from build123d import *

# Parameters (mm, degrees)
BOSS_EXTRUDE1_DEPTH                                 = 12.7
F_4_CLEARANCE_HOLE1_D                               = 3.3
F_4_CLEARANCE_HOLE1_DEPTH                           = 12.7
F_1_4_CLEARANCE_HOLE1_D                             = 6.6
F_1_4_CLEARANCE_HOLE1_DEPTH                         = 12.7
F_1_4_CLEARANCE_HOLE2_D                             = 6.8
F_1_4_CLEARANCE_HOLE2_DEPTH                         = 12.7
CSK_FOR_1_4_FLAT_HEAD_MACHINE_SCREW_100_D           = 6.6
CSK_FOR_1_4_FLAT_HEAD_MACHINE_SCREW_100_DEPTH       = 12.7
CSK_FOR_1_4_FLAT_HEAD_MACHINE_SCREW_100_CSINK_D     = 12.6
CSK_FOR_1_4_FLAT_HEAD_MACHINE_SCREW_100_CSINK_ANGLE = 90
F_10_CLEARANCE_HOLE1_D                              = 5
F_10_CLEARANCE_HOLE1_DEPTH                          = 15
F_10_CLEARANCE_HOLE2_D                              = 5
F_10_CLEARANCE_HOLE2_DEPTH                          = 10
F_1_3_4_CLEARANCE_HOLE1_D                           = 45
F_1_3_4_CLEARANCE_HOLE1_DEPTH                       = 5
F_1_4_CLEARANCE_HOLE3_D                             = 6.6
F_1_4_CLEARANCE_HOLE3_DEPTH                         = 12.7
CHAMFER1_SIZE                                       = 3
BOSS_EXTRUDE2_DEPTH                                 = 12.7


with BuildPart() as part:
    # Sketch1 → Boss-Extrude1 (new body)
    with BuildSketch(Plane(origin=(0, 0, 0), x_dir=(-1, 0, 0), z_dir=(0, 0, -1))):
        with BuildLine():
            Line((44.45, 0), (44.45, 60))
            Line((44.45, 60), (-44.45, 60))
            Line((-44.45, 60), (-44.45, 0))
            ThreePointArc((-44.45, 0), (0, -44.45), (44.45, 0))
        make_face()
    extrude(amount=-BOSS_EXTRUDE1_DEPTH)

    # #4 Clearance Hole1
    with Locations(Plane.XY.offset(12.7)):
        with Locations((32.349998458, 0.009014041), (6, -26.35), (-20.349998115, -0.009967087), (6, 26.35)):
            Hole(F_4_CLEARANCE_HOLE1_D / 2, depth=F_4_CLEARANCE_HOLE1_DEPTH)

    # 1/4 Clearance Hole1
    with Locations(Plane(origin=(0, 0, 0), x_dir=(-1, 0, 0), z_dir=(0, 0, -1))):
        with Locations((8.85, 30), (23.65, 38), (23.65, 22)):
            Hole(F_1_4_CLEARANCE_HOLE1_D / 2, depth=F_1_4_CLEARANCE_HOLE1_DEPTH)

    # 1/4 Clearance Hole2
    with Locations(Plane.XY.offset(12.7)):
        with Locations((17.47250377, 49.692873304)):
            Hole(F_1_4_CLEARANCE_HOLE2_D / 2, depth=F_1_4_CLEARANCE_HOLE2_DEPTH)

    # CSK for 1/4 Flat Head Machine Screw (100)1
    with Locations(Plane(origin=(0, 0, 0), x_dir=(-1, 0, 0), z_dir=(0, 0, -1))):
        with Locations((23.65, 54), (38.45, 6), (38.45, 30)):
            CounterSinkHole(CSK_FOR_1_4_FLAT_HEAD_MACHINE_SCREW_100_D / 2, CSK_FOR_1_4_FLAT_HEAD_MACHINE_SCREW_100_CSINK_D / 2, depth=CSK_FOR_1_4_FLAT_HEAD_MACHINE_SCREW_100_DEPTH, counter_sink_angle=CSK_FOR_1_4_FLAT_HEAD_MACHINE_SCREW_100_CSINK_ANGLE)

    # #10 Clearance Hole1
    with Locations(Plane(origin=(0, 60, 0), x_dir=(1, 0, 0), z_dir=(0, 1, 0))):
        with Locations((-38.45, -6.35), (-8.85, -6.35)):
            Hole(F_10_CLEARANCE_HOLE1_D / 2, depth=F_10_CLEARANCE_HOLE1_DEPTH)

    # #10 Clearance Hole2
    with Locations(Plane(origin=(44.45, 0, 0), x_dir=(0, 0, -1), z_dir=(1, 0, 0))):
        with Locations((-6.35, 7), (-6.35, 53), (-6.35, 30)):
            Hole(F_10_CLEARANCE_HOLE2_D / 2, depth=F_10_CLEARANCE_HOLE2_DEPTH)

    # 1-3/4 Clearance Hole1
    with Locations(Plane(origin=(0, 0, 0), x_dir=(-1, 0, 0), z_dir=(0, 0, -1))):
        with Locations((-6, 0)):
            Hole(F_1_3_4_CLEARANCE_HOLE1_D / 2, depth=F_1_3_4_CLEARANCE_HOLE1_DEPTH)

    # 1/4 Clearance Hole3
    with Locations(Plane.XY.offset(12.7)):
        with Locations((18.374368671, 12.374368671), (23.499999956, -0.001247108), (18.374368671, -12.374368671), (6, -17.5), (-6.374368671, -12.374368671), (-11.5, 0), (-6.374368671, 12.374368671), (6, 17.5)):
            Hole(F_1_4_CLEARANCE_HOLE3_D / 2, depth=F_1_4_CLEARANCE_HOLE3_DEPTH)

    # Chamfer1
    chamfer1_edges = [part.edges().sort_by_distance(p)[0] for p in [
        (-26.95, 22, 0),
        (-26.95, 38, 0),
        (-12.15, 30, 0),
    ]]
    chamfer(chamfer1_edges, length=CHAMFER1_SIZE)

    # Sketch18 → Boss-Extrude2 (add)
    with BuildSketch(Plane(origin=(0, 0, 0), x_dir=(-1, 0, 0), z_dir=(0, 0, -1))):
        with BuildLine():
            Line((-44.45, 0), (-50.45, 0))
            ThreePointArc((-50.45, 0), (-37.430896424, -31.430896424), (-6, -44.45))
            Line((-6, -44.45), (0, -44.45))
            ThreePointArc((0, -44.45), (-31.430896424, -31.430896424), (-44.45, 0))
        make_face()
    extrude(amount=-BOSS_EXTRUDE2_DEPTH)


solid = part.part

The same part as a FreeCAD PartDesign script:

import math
import FreeCAD as App
import Part
import Sketcher

V = App.Vector


def edges_at(feature, points):
    """Names of the edges that pass closest to the given points."""
    edges = feature.Shape.Edges
    near = lambda p: min(range(len(edges)), key=lambda i: edges[i].distToShape(Part.Vertex(*p))[0])
    return sorted({f"Edge{near(p) + 1}" for p in points})

doc = App.newDocument("Part")
body = doc.addObject("PartDesign::Body", "Body")

# Sketch on XY plane
sketch1 = body.newObject("Sketcher::SketchObject", "Sketch")
sketch1.AttachmentSupport = (doc.getObject("XY_Plane"), [""])
sketch1.MapMode = "FlatFace"
sketch1.addGeometry(Part.LineSegment(V(-44.45, 0, 0), V(-44.45, 60, 0)), False)
sketch1.addGeometry(Part.LineSegment(V(-44.45, 60, 0), V(44.45, 60, 0)), False)
sketch1.addGeometry(Part.LineSegment(V(44.45, 60, 0), V(44.45, 0, 0)), False)
sketch1.addGeometry(Part.ArcOfCircle(Part.Circle(V(0, 0, 0), V(0, 0, 1), 44.45), math.radians(180), math.radians(360)), False)
sketch1.addConstraint(Sketcher.Constraint("Coincident", 0, 2, 1, 1))
sketch1.addConstraint(Sketcher.Constraint("Coincident", 1, 2, 2, 1))
sketch1.addConstraint(Sketcher.Constraint("Tangent", 2, 2, 3, 2))
sketch1.addConstraint(Sketcher.Constraint("Tangent", 3, 1, 0, 1))
sketch1.addConstraint(Sketcher.Constraint("Vertical", 0))
sketch1.addConstraint(Sketcher.Constraint("Horizontal", 1))
sketch1.addConstraint(Sketcher.Constraint("Vertical", 2))
sketch1.addConstraint(Sketcher.Constraint("Coincident", 3, 3, -1, 1))
sketch1.addConstraint(Sketcher.Constraint("DistanceY", 0, 1, 0, 2, 60.0))
sketch1.addConstraint(Sketcher.Constraint("Radius", 3, 44.45))
pad1 = body.newObject("PartDesign::Pad", "Pad")
pad1.Profile = sketch1
pad1.Length = 12.7

# Sketch on XY plane
sketch2 = body.newObject("Sketcher::SketchObject", "Sketch001")
sketch2.AttachmentSupport = (doc.getObject("XY_Plane"), [""])
sketch2.MapMode = "FlatFace"
sketch2.AttachmentOffset = App.Placement(V(0, 0, 12.7), App.Rotation())
sketch2.addGeometry(Part.Circle(V(32.349998, 0.009014, 0), V(0, 0, 1), 1.65), False)
sketch2.addGeometry(Part.Circle(V(6, -26.35, 0), V(0, 0, 1), 1.65), False)
sketch2.addGeometry(Part.Circle(V(-20.349998, -0.009967, 0), V(0, 0, 1), 1.65), False)
sketch2.addGeometry(Part.Circle(V(6, 26.35, 0), V(0, 0, 1), 1.65), False)
sketch2.addConstraint(Sketcher.Constraint("Equal", 0, 1))
sketch2.addConstraint(Sketcher.Constraint("Equal", 1, 2))
sketch2.addConstraint(Sketcher.Constraint("Equal", 2, 3))
sketch2.addConstraint(Sketcher.Constraint("Symmetric", 1, 3, 3, 3, -1))
sketch2.addConstraint(Sketcher.Constraint("Diameter", 0, 3.3))
sketch2.addConstraint(Sketcher.Constraint("DistanceX", -1, 1, 1, 3, 6.0))
sketch2.addConstraint(Sketcher.Constraint("DistanceY", 1, 3, 3, 3, 52.7))
sketch2.addConstraint(Sketcher.Constraint("DistanceX", -1, 1, 0, 3, 32.349998))
sketch2.addConstraint(Sketcher.Constraint("DistanceX", 2, 3, -1, 1, 20.349998))
sketch2.addConstraint(Sketcher.Constraint("DistanceY", 2, 3, 0, 3, 0.018981))
sketch2.addConstraint(Sketcher.Constraint("DistanceY", -1, 1, 0, 3, 0.009014))
doc.recompute()
hole = body.newObject("PartDesign::Hole", "Hole")
hole.Profile = sketch2
hole.ThreadType = "None"
hole.Diameter = 3.3
hole.DepthType = "Dimension"
hole.Depth = 12.7
hole.DrillPoint = "Flat"

# Sketch on XY plane
sketch3 = body.newObject("Sketcher::SketchObject", "Sketch002")
sketch3.AttachmentSupport = (doc.getObject("XY_Plane"), [""])
sketch3.MapMode = "FlatFace"
sketch3.addGeometry(Part.Circle(V(-8.85, 30, 0), V(0, 0, 1), 3.3), False)
sketch3.addGeometry(Part.Circle(V(-23.65, 38, 0), V(0, 0, 1), 3.3), False)
sketch3.addGeometry(Part.Circle(V(-23.65, 22, 0), V(0, 0, 1), 3.3), False)
sketch3.addConstraint(Sketcher.Constraint("Equal", 0, 1))
sketch3.addConstraint(Sketcher.Constraint("Equal", 1, 2))
sketch3.addConstraint(Sketcher.Constraint("Vertical", 1, 3, 2, 3))
sketch3.addConstraint(Sketcher.Constraint("Diameter", 0, 6.6))
sketch3.addConstraint(Sketcher.Constraint("DistanceY", -1, 1, 0, 3, 30.0))
sketch3.addConstraint(Sketcher.Constraint("DistanceY", -1, 1, 1, 3, 38.0))
sketch3.addConstraint(Sketcher.Constraint("DistanceY", -1, 1, 2, 3, 22.0))
sketch3.addConstraint(Sketcher.Constraint("DistanceX", 1, 3, 0, 3, 14.8))
sketch3.addConstraint(Sketcher.Constraint("DistanceX", 0, 3, -1, 1, 8.85))
doc.recompute()
hole2 = body.newObject("PartDesign::Hole", "Hole001")
hole2.Profile = sketch3
hole2.ThreadType = "None"
hole2.Diameter = 6.6
hole2.DepthType = "Dimension"
hole2.Depth = 12.7
hole2.DrillPoint = "Flat"
hole2.Reversed = True

# Sketch on XY plane
sketch4 = body.newObject("Sketcher::SketchObject", "Sketch003")
sketch4.AttachmentSupport = (doc.getObject("XY_Plane"), [""])
sketch4.MapMode = "FlatFace"
sketch4.AttachmentOffset = App.Placement(V(0, 0, 12.7), App.Rotation())
sketch4.addGeometry(Part.Circle(V(17.472504, 49.692873, 0), V(0, 0, 1), 3.4), False)
sketch4.addConstraint(Sketcher.Constraint("Diameter", 0, 6.8))
sketch4.addConstraint(Sketcher.Constraint("DistanceX", -1, 1, 0, 3, 17.472504))
sketch4.addConstraint(Sketcher.Constraint("DistanceY", -1, 1, 0, 3, 49.692873))
doc.recompute()
hole3 = body.newObject("PartDesign::Hole", "Hole002")
hole3.Profile = sketch4
hole3.ThreadType = "None"
hole3.Diameter = 6.8
hole3.DepthType = "Dimension"
hole3.Depth = 12.7
hole3.DrillPoint = "Flat"

# Sketch on XY plane
sketch5 = body.newObject("Sketcher::SketchObject", "Sketch004")
sketch5.AttachmentSupport = (doc.getObject("XY_Plane"), [""])
sketch5.MapMode = "FlatFace"
sketch5.addGeometry(Part.Circle(V(-23.65, 54, 0), V(0, 0, 1), 3.3), False)
sketch5.addGeometry(Part.Circle(V(-38.45, 6, 0), V(0, 0, 1), 3.3), False)
sketch5.addGeometry(Part.Circle(V(-38.45, 30, 0), V(0, 0, 1), 3.3), False)
sketch5.addConstraint(Sketcher.Constraint("Equal", 0, 1))
sketch5.addConstraint(Sketcher.Constraint("Equal", 1, 2))
sketch5.addConstraint(Sketcher.Constraint("Vertical", 1, 3, 2, 3))
sketch5.addConstraint(Sketcher.Constraint("Diameter", 0, 6.6))
sketch5.addConstraint(Sketcher.Constraint("DistanceY", -1, 1, 0, 3, 54.0))
sketch5.addConstraint(Sketcher.Constraint("DistanceY", -1, 1, 1, 3, 6.0))
sketch5.addConstraint(Sketcher.Constraint("DistanceY", -1, 1, 2, 3, 30.0))
sketch5.addConstraint(Sketcher.Constraint("DistanceX", 1, 3, 0, 3, 14.8))
sketch5.addConstraint(Sketcher.Constraint("DistanceX", 0, 3, -1, 1, 23.65))
doc.recompute()
hole4 = body.newObject("PartDesign::Hole", "Hole003")
hole4.Profile = sketch5
hole4.ThreadType = "None"
hole4.Diameter = 6.6
hole4.DepthType = "Dimension"
hole4.Depth = 12.7
hole4.DrillPoint = "Flat"
hole4.HoleCutType = "Countersink"
hole4.HoleCutDiameter = 12.6
hole4.HoleCutCountersinkAngle = 90
hole4.Reversed = True

# Sketch on XZ plane
sketch6 = body.newObject("Sketcher::SketchObject", "Sketch005")
sketch6.AttachmentSupport = (doc.getObject("XZ_Plane"), [""])
sketch6.MapMode = "FlatFace"
sketch6.AttachmentOffset = App.Placement(V(0, 0, -60), App.Rotation())
sketch6.addGeometry(Part.Circle(V(-38.45, 6.35, 0), V(0, 0, 1), 2.5), False)
sketch6.addGeometry(Part.Circle(V(-8.85, 6.35, 0), V(0, 0, 1), 2.5), False)
sketch6.addConstraint(Sketcher.Constraint("Equal", 0, 1))
sketch6.addConstraint(Sketcher.Constraint("Horizontal", 0, 3, 1, 3))
sketch6.addConstraint(Sketcher.Constraint("Diameter", 0, 5.0))
sketch6.addConstraint(Sketcher.Constraint("DistanceX", 0, 3, 1, 3, 29.6))
sketch6.addConstraint(Sketcher.Constraint("DistanceX", 0, 3, -1, 1, 38.45))
sketch6.addConstraint(Sketcher.Constraint("DistanceY", -1, 1, 0, 3, 6.35))
doc.recompute()
hole5 = body.newObject("PartDesign::Hole", "Hole004")
hole5.Profile = sketch6
hole5.ThreadType = "None"
hole5.Diameter = 5
hole5.DepthType = "Dimension"
hole5.Depth = 15
hole5.DrillPoint = "Flat"
hole5.Reversed = True

# Sketch on YZ plane
sketch7 = body.newObject("Sketcher::SketchObject", "Sketch006")
sketch7.AttachmentSupport = (doc.getObject("YZ_Plane"), [""])
sketch7.MapMode = "FlatFace"
sketch7.AttachmentOffset = App.Placement(V(0, 0, 44.45), App.Rotation())
sketch7.addGeometry(Part.Circle(V(7, 6.35, 0), V(0, 0, 1), 2.5), False)
sketch7.addGeometry(Part.Circle(V(53, 6.35, 0), V(0, 0, 1), 2.5), False)
sketch7.addGeometry(Part.Circle(V(30, 6.35, 0), V(0, 0, 1), 2.5), False)
sketch7.addConstraint(Sketcher.Constraint("Equal", 0, 1))
sketch7.addConstraint(Sketcher.Constraint("Equal", 1, 2))
sketch7.addConstraint(Sketcher.Constraint("Horizontal", 0, 3, 1, 3))
sketch7.addConstraint(Sketcher.Constraint("Horizontal", 1, 3, 2, 3))
sketch7.addConstraint(Sketcher.Constraint("Diameter", 0, 5.0))
sketch7.addConstraint(Sketcher.Constraint("DistanceX", -1, 1, 0, 3, 7.0))
sketch7.addConstraint(Sketcher.Constraint("DistanceX", -1, 1, 1, 3, 53.0))
sketch7.addConstraint(Sketcher.Constraint("DistanceX", -1, 1, 2, 3, 30.0))
sketch7.addConstraint(Sketcher.Constraint("DistanceY", -1, 1, 0, 3, 6.35))
doc.recompute()
hole6 = body.newObject("PartDesign::Hole", "Hole005")
hole6.Profile = sketch7
hole6.ThreadType = "None"
hole6.Diameter = 5
hole6.DepthType = "Dimension"
hole6.Depth = 10
hole6.DrillPoint = "Flat"

# Sketch on XY plane
sketch8 = body.newObject("Sketcher::SketchObject", "Sketch007")
sketch8.AttachmentSupport = (doc.getObject("XY_Plane"), [""])
sketch8.MapMode = "FlatFace"
sketch8.addGeometry(Part.Circle(V(6, 0, 0), V(0, 0, 1), 22.5), False)
sketch8.addConstraint(Sketcher.Constraint("PointOnObject", 0, 3, -1))
sketch8.addConstraint(Sketcher.Constraint("Diameter", 0, 45.0))
sketch8.addConstraint(Sketcher.Constraint("DistanceX", -1, 1, 0, 3, 6.0))
doc.recompute()
hole7 = body.newObject("PartDesign::Hole", "Hole006")
hole7.Profile = sketch8
hole7.ThreadType = "None"
hole7.Diameter = 45
hole7.DepthType = "Dimension"
hole7.Depth = 5
hole7.DrillPoint = "Flat"
hole7.Reversed = True

# Sketch on XY plane
sketch9 = body.newObject("Sketcher::SketchObject", "Sketch008")
sketch9.AttachmentSupport = (doc.getObject("XY_Plane"), [""])
sketch9.MapMode = "FlatFace"
sketch9.AttachmentOffset = App.Placement(V(0, 0, 12.7), App.Rotation())
sketch9.addGeometry(Part.Circle(V(18.374369, 12.374369, 0), V(0, 0, 1), 3.3), False)
sketch9.addGeometry(Part.Circle(V(23.5, -0.001247, 0), V(0, 0, 1), 3.3), False)
sketch9.addGeometry(Part.Circle(V(18.374369, -12.374369, 0), V(0, 0, 1), 3.3), False)
sketch9.addGeometry(Part.Circle(V(6, -17.5, 0), V(0, 0, 1), 3.3), False)
sketch9.addGeometry(Part.Circle(V(-6.374369, -12.374369, 0), V(0, 0, 1), 3.3), False)
sketch9.addGeometry(Part.Circle(V(-11.5, 0, 0), V(0, 0, 1), 3.3), False)
sketch9.addGeometry(Part.Circle(V(-6.374369, 12.374369, 0), V(0, 0, 1), 3.3), False)
sketch9.addGeometry(Part.Circle(V(6, 17.5, 0), V(0, 0, 1), 3.3), False)
sketch9.addConstraint(Sketcher.Constraint("Equal", 0, 1))
sketch9.addConstraint(Sketcher.Constraint("Equal", 1, 2))
sketch9.addConstraint(Sketcher.Constraint("Equal", 2, 3))
sketch9.addConstraint(Sketcher.Constraint("Equal", 3, 4))
sketch9.addConstraint(Sketcher.Constraint("Equal", 4, 5))
sketch9.addConstraint(Sketcher.Constraint("Equal", 5, 6))
sketch9.addConstraint(Sketcher.Constraint("Equal", 6, 7))
sketch9.addConstraint(Sketcher.Constraint("Symmetric", 0, 3, 2, 3, -1))
sketch9.addConstraint(Sketcher.Constraint("Symmetric", 4, 3, 6, 3, -1))
sketch9.addConstraint(Sketcher.Constraint("Symmetric", 3, 3, 7, 3, -1))
sketch9.addConstraint(Sketcher.Constraint("PointOnObject", 5, 3, -1))
sketch9.addConstraint(Sketcher.Constraint("Horizontal", 2, 3, 4, 3))
sketch9.addConstraint(Sketcher.Constraint("Diameter", 0, 6.6))
sketch9.addConstraint(Sketcher.Constraint("DistanceX", -1, 1, 3, 3, 6.0))
sketch9.addConstraint(Sketcher.Constraint("DistanceX", 5, 3, 1, 3, 35.0))
sketch9.addConstraint(Sketcher.Constraint("DistanceX", -1, 1, 1, 3, 23.5))
sketch9.addConstraint(Sketcher.Constraint("DistanceY", 3, 3, -1, 1, 17.5))
sketch9.addConstraint(Sketcher.Constraint("DistanceX", -1, 1, 0, 3, 18.374369))
sketch9.addConstraint(Sketcher.Constraint("DistanceY", -1, 1, 0, 3, 12.374369))
sketch9.addConstraint(Sketcher.Constraint("DistanceX", 4, 3, -1, 1, 6.374369))
sketch9.addConstraint(Sketcher.Constraint("DistanceY", 2, 3, 1, 3, 12.373122))
doc.recompute()
hole8 = body.newObject("PartDesign::Hole", "Hole007")
hole8.Profile = sketch9
hole8.ThreadType = "None"
hole8.Diameter = 6.6
hole8.DepthType = "Dimension"
hole8.Depth = 12.7
hole8.DrillPoint = "Flat"
doc.recompute()

chamfer = body.newObject("PartDesign::Chamfer", "Chamfer")
chamfer.Base = (hole8, edges_at(hole8, [(-26.95, 22, 0), (-26.95, 38, 0), (-12.15, 30, 0)]))
chamfer.Size = 3

# Sketch on XY plane
sketch10 = body.newObject("Sketcher::SketchObject", "Sketch009")
sketch10.AttachmentSupport = (doc.getObject("XY_Plane"), [""])
sketch10.MapMode = "FlatFace"
sketch10.addGeometry(Part.LineSegment(V(44.45, 0, 0), V(50.45, 0, 0)), False)
sketch10.addGeometry(Part.ArcOfCircle(Part.Circle(V(6, 0, 0), V(0, 0, 1), 44.45), math.radians(-90), math.radians(0)), False)
sketch10.addGeometry(Part.LineSegment(V(6, -44.45, 0), V(0, -44.45, 0)), False)
sketch10.addGeometry(Part.ArcOfCircle(Part.Circle(V(0, 0, 0), V(0, 0, 1), 44.45), math.radians(-90), math.radians(0)), False)
sketch10.addConstraint(Sketcher.Constraint("Coincident", 0, 2, 1, 2))
sketch10.addConstraint(Sketcher.Constraint("Tangent", 1, 1, 2, 1))
sketch10.addConstraint(Sketcher.Constraint("Tangent", 2, 2, 3, 1))
sketch10.addConstraint(Sketcher.Constraint("Coincident", 3, 2, 0, 1))
sketch10.addConstraint(Sketcher.Constraint("Horizontal", 0))
sketch10.addConstraint(Sketcher.Constraint("Horizontal", 2))
sketch10.addConstraint(Sketcher.Constraint("Coincident", 3, 3, -1, 1))
sketch10.addConstraint(Sketcher.Constraint("Equal", 1, 3))
sketch10.addConstraint(Sketcher.Constraint("PointOnObject", 0, 2, -1))
sketch10.addConstraint(Sketcher.Constraint("DistanceX", 0, 1, 0, 2, 6.0))
sketch10.addConstraint(Sketcher.Constraint("Radius", 1, 44.45))
pad2 = body.newObject("PartDesign::Pad", "Pad001")
pad2.Profile = sketch10
pad2.Length = 12.7

doc.recompute()
